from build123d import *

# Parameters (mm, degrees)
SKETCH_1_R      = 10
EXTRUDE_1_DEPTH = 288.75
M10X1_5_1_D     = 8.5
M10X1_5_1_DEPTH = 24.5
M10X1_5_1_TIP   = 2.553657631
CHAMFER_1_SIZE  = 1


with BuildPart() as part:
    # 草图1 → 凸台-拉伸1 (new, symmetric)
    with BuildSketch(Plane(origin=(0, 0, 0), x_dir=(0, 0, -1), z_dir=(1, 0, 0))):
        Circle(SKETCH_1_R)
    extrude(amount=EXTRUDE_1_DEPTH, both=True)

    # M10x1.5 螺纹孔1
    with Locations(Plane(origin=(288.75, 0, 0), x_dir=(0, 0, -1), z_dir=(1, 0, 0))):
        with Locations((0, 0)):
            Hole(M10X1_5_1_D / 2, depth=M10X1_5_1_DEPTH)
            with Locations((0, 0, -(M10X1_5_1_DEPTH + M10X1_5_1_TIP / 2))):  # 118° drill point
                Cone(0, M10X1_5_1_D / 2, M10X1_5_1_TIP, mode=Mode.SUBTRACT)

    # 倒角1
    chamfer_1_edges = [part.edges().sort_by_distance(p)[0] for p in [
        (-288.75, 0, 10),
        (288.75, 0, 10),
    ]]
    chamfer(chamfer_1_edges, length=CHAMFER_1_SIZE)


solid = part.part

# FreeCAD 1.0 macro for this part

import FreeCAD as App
import Part
import Sketcher
from FreeCAD import Vector


def edges_at(feature, points):
    """Names of the edges that pass closest to the given points."""
    edges = feature.Shape.Edges
    near = lambda p: min(range(len(edges)), key=lambda i: edges[i].distToShape(Part.Vertex(*p))[0])
    return sorted({f"Edge{near(p) + 1}" for p in points})

doc = App.newDocument("Part")
body = doc.addObject("PartDesign::Body", "Body")

sketch1 = body.newObject("Sketcher::SketchObject", "Sketch")
sketch1.AttachmentSupport = (doc.getObject("YZ_Plane"), [""])
sketch1.MapMode = "FlatFace"
sketch1.addGeometry(Part.Circle(Vector(0, 0, 0), Vector(0, 0, 1), 10), False)
sketch1.addConstraint(Sketcher.Constraint("Coincident", 0, 3, -1, 1))
sketch1.addConstraint(Sketcher.Constraint("Diameter", 0, 20.0))
pad1 = body.newObject("PartDesign::Pad", "Pad")
pad1.Profile = sketch1
pad1.Length = 577.5
pad1.Midplane = True

sketch2 = body.newObject("Sketcher::SketchObject", "Sketch001")
sketch2.AttachmentSupport = (doc.getObject("YZ_Plane"), [""])
sketch2.MapMode = "FlatFace"
sketch2.AttachmentOffset = App.Placement(Vector(0, 0, 288.75), App.Rotation())
sketch2.addGeometry(Part.Circle(Vector(0, 0, 0), Vector(0, 0, 1), 4.2), False)
sketch2.addConstraint(Sketcher.Constraint("Coincident", 0, 3, -1, 1))
sketch2.addConstraint(Sketcher.Constraint("Diameter", 0, 8.5))
doc.recompute()
hole = body.newObject("PartDesign::Hole", "Hole")
hole.Profile = sketch2
hole.ThreadType = "None"
hole.Diameter = 8.5
hole.DepthType = "Dimension"
hole.Depth = 24.5
hole.DrillPoint = "Angled"
hole.DrillPointAngle = 118
doc.recompute()

chamfer = body.newObject("PartDesign::Chamfer", "Chamfer")
chamfer.Base = (hole, edges_at(hole, [(-288.75, 0, 10), (288.75, 0, 10)]))
chamfer.Size = 1

doc.recompute()
